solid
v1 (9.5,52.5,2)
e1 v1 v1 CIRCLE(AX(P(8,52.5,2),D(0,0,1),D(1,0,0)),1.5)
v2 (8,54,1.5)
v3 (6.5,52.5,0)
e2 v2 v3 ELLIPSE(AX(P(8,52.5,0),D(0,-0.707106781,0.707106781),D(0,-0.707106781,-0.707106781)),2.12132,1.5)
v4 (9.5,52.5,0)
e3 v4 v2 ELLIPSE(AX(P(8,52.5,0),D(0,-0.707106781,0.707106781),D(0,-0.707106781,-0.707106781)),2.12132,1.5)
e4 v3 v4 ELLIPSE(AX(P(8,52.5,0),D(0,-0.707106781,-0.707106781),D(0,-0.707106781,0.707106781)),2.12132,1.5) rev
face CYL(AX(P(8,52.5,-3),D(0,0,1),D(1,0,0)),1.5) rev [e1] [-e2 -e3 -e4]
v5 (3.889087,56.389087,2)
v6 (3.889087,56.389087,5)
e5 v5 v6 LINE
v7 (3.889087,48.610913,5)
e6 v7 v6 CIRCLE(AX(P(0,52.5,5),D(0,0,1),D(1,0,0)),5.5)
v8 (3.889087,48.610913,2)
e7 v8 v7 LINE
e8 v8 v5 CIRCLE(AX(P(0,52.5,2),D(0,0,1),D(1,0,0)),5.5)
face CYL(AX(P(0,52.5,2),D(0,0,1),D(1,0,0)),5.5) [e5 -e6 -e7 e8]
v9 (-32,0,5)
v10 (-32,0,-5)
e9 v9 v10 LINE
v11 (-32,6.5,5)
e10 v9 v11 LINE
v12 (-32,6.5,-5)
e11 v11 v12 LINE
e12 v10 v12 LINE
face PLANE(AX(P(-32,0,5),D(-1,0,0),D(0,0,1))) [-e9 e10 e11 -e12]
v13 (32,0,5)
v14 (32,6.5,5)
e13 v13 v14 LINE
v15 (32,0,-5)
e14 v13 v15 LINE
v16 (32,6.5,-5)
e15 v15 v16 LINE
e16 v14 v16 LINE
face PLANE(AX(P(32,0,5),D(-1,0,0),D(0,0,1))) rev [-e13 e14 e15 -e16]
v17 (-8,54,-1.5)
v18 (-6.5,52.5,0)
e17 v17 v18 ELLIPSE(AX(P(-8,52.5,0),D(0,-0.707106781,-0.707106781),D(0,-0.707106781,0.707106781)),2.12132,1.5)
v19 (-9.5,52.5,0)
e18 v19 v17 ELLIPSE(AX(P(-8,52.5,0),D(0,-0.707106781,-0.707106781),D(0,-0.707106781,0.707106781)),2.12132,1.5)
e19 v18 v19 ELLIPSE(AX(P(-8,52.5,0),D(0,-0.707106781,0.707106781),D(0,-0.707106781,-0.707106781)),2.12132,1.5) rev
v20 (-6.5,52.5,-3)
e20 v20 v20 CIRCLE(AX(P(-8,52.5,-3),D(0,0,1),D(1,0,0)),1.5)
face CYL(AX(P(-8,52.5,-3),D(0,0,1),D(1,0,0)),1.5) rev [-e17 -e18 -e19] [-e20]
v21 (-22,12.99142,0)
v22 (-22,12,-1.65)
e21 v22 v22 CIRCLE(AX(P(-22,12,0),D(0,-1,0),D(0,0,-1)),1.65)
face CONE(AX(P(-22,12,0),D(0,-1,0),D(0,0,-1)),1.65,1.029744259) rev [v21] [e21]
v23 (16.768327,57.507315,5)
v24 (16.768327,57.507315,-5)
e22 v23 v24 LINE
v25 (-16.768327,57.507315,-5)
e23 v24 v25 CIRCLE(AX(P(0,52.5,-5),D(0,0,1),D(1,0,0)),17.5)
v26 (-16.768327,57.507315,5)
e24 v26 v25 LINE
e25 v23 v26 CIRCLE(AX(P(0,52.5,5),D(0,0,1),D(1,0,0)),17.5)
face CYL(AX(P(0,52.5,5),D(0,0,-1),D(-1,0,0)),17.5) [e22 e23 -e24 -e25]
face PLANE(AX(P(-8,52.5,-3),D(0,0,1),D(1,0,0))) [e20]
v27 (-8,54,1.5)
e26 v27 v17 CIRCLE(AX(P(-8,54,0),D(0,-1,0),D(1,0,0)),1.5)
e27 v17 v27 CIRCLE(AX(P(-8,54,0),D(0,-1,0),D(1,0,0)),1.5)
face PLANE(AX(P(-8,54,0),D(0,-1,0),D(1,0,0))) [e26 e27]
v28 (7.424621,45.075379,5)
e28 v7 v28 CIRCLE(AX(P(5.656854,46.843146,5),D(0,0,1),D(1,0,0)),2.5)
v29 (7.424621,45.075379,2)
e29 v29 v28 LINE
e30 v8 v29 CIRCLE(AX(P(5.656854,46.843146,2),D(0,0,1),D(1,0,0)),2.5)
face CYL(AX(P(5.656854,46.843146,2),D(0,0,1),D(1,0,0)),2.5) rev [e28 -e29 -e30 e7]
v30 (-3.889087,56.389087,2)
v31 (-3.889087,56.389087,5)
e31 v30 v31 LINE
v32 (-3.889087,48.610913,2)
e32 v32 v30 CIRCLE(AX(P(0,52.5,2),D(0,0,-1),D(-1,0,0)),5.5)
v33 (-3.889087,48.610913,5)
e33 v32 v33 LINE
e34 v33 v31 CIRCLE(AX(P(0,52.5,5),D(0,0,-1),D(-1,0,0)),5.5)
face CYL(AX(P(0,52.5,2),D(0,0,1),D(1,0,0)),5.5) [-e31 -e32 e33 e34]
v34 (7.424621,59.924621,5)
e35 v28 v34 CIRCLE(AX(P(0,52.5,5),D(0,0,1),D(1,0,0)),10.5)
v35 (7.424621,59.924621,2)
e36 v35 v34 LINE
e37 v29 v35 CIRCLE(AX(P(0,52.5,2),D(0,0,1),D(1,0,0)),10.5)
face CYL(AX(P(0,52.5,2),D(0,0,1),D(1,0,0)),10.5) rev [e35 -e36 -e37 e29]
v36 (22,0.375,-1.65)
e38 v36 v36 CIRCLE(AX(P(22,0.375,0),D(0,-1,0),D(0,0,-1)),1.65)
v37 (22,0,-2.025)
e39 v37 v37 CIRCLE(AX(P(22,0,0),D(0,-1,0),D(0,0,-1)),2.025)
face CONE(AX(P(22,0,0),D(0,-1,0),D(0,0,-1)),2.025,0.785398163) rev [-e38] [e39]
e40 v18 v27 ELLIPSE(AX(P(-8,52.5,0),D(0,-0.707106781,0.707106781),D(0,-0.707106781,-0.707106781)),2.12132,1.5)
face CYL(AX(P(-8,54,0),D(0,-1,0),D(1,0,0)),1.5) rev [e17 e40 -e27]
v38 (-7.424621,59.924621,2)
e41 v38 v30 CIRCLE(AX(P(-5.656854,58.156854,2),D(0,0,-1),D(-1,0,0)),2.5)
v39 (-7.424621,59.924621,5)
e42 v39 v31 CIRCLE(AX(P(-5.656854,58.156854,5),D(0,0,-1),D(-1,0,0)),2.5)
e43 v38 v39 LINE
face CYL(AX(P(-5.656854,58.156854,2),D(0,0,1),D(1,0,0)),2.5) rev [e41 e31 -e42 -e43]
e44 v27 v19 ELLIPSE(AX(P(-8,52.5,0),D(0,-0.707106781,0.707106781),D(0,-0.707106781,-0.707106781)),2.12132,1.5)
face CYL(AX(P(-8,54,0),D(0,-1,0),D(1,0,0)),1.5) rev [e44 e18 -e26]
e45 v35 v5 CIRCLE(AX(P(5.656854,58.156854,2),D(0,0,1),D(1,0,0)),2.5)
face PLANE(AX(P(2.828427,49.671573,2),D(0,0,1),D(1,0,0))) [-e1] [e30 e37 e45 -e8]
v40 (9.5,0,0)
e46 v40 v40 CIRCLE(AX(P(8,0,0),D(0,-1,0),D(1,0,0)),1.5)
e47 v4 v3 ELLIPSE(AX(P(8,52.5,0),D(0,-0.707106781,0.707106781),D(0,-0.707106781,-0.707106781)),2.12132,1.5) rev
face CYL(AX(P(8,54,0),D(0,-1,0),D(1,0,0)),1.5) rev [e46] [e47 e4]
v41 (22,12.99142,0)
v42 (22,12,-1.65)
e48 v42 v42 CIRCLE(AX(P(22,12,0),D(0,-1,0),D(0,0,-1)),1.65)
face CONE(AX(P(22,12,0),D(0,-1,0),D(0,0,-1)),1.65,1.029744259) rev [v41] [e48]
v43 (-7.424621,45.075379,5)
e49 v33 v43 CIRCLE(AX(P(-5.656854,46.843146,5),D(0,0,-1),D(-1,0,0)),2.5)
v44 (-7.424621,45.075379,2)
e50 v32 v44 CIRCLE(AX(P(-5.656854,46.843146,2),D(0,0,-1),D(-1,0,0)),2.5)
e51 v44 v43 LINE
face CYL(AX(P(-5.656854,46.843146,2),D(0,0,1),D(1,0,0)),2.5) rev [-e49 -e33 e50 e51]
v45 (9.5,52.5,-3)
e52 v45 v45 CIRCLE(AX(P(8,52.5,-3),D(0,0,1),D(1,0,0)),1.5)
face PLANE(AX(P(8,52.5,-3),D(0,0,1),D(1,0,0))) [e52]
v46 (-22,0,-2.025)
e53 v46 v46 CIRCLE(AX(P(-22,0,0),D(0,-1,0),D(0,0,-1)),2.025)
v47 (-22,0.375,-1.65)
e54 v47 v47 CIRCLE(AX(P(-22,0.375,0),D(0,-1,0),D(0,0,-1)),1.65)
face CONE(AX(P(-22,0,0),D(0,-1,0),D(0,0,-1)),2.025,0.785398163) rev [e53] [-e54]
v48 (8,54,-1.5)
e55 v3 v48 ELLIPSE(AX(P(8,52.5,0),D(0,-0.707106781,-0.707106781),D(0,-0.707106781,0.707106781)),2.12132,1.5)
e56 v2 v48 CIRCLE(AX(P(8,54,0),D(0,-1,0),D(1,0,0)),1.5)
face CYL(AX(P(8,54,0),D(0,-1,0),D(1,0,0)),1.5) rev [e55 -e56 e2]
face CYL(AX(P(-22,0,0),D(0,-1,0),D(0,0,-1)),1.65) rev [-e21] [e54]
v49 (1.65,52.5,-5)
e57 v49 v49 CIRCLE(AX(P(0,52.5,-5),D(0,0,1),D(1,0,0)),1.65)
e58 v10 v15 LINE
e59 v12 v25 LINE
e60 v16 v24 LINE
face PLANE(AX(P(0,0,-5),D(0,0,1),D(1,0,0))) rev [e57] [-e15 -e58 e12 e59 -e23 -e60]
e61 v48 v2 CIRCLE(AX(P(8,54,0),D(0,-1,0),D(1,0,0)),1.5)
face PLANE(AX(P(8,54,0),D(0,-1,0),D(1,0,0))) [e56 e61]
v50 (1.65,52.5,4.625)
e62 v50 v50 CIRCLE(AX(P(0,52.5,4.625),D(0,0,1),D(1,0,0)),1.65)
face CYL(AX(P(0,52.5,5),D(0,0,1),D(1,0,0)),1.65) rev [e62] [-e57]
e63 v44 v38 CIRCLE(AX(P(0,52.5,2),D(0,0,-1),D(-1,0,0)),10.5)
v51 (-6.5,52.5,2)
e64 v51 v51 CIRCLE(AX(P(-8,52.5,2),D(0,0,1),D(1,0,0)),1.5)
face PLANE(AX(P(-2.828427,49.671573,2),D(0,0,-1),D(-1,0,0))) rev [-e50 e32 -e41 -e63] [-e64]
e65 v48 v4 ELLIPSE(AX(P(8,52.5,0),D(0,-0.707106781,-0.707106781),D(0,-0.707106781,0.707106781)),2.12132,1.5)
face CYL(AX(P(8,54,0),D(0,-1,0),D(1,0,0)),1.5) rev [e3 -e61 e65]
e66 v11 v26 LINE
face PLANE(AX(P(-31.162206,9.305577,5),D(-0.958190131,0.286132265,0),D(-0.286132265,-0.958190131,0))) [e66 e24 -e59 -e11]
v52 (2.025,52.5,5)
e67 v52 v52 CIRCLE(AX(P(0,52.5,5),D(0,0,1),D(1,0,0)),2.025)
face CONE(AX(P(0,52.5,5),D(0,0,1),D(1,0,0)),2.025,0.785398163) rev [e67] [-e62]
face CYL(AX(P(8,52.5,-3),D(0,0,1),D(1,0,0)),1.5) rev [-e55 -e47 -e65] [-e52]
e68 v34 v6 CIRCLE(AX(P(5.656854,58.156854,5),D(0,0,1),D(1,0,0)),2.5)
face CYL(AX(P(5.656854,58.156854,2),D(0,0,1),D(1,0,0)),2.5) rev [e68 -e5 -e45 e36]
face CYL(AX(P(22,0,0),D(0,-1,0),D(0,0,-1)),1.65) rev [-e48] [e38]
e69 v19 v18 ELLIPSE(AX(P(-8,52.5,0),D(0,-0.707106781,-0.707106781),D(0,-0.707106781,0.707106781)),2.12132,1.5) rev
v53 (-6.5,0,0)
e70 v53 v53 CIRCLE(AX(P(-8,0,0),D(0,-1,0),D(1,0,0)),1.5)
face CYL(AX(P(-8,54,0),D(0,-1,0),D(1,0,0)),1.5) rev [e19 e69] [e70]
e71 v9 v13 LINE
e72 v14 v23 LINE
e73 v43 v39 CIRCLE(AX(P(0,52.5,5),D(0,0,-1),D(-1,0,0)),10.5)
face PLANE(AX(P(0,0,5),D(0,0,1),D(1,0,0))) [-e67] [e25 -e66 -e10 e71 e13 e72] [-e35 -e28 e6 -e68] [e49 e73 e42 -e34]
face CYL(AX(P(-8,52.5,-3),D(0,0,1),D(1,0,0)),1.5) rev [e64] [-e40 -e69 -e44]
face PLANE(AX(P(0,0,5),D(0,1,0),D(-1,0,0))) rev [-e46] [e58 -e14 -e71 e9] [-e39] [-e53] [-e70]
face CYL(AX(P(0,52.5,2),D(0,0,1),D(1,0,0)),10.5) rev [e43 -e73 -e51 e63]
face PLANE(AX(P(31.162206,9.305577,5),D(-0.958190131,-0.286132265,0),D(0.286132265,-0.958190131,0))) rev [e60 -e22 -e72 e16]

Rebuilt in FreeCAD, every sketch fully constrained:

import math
import FreeCAD as App
import Part
import Sketcher

V = App.Vector
Q = App.Units.Quantity

doc = App.newDocument("Part")
params = doc.addObject("Spreadsheet::Sheet", "Params")
for row, (alias, value) in enumerate([
    ("sketch1_radius", "17.5 mm"),
    ("sketch1_width", "64 mm"),
    ("sketch1_height", "6.5 mm"),
    ("pad1_length", "10 mm"),
    ("sketch2_diameter", "3.3 mm"),
    ("hole_diameter", "3.3 mm"),
    ("hole_csink_diameter", "4.05 mm"),
    ("sketch3_diameter", "3.3 mm"),
    ("hole2_diameter", "3.3 mm"),
    ("hole2_depth", "12 mm"),
    ("hole2_csink_diameter", "4.05 mm"),
    ("sketch4_diameter", "3 mm"),
    ("pocket1_length", "54 mm"),
    ("sketch5_radius", "10.5 mm"),
    ("sketch5_radius2", "2.5 mm"),
    ("pocket2_length", "3 mm"),
    ("sketch6_diameter", "3 mm"),
    ("pocket3_length", "5 mm"),
], start=1):
    params.set(f"A{row}", alias)
    params.set(f"B{row}", "=" + value)
    params.setAlias(f"B{row}", alias)

body = doc.addObject("PartDesign::Body", "Body")

# Sketch on XY plane
sketch1 = body.newObject("Sketcher::SketchObject", "Sketch")
sketch1.AttachmentSupport = (doc.getObject("XY_Plane"), [""])
sketch1.MapMode = "FlatFace"
sketch1.addGeometry(Part.LineSegment(V(-32, 0, 0), V(32, 0, 0)), False)
sketch1.addGeometry(Part.LineSegment(V(32, 0, 0), V(32, 6, 0)), False)
sketch1.addGeometry(Part.LineSegment(V(32, 6, 0), V(17, 58, 0)), False)
sketch1.addGeometry(Part.ArcOfCircle(Part.Circle(V(0, 52, 0), V(0, 0, 1), 18), math.radians(17), math.radians(163)), False)
sketch1.addGeometry(Part.LineSegment(V(-17, 58, 0), V(-32, 6, 0)), False)
sketch1.addGeometry(Part.LineSegment(V(-32, 6, 0), V(-32, 0, 0)), False)
sketch1.addConstraint(Sketcher.Constraint("Coincident", 0, 2, 1, 1))
sketch1.addConstraint(Sketcher.Constraint("Coincident", 1, 2, 2, 1))
sketch1.addConstraint(Sketcher.Constraint("Tangent", 2, 2, 3, 1))
sketch1.addConstraint(Sketcher.Constraint("Tangent", 3, 2, 4, 1))
sketch1.addConstraint(Sketcher.Constraint("Coincident", 4, 2, 5, 1))
sketch1.addConstraint(Sketcher.Constraint("Coincident", 5, 2, 0, 1))
sketch1.addConstraint(Sketcher.Constraint("Horizontal", 0))
sketch1.addConstraint(Sketcher.Constraint("Vertical", 1))
sketch1.addConstraint(Sketcher.Constraint("Vertical", 5))
sketch1.addConstraint(Sketcher.Constraint("Symmetric", 0, 2, 5, 2, -1, 1))
sketch1.addConstraint(Sketcher.Constraint("Symmetric", 2, 2, 3, 2, -2))
sketch1.addConstraint(Sketcher.Constraint("Radius", 3, Q("17.5 mm")))
sketch1.addConstraint(Sketcher.Constraint("DistanceX", 0, 1, 0, 2, Q("64 mm")))
sketch1.addConstraint(Sketcher.Constraint("DistanceY", 1, 1, 1, 2, Q("6.5 mm")))
sketch1.addConstraint(Sketcher.Constraint("DistanceY", 1, 2, 3, 3, Q("46 mm")))
sketch1.setExpression("Constraints[11]", "Params.sketch1_radius")
sketch1.setExpression("Constraints[12]", "Params.sketch1_width")
sketch1.setExpression("Constraints[13]", "Params.sketch1_height")
pad1 = body.newObject("PartDesign::Pad", "Pad")
pad1.Profile = sketch1
pad1.setExpression("Length", "Params.pad1_length")
pad1.Midplane = True

# Sketch on XY plane
sketch2 = body.newObject("Sketcher::SketchObject", "Sketch001")
sketch2.AttachmentSupport = (doc.getObject("XY_Plane"), [""])
sketch2.MapMode = "FlatFace"
sketch2.AttachmentOffset = App.Placement(V(0, 0, 5), App.Rotation())
sketch2.addGeometry(Part.Circle(V(0, 52.5, 0), V(0, 0, 1), 1.6), False)
sketch2.addConstraint(Sketcher.Constraint("PointOnObject", 0, 3, -2))
sketch2.addConstraint(Sketcher.Constraint("Diameter", 0, Q("3.3 mm")))
sketch2.addConstraint(Sketcher.Constraint("DistanceY", -1, 1, 0, 3, Q("52.5 mm")))
sketch2.setExpression("Constraints[1]", "Params.sketch2_diameter")
doc.recompute()
hole = body.newObject("PartDesign::Hole", "Hole")
hole.Profile = sketch2
hole.ThreadType = "None"
hole.setExpression("Diameter", "Params.hole_diameter")
hole.DepthType = "ThroughAll"
hole.HoleCutType = "Countersink"
hole.setExpression("HoleCutDiameter", "Params.hole_csink_diameter")
hole.HoleCutCountersinkAngle = 90

# Sketch on XZ plane
sketch3 = body.newObject("Sketcher::SketchObject", "Sketch002")
sketch3.AttachmentSupport = (doc.getObject("XZ_Plane"), [""])
sketch3.MapMode = "FlatFace"
sketch3.addGeometry(Part.Circle(V(-22, 0, 0), V(0, 0, 1), 1.6), False)
sketch3.addGeometry(Part.Circle(V(22, 0, 0), V(0, 0, 1), 1.6), False)
sketch3.addConstraint(Sketcher.Constraint("Equal", 0, 1))
sketch3.addConstraint(Sketcher.Constraint("Symmetric", 0, 3, 1, 3, -1, 1))
sketch3.addConstraint(Sketcher.Constraint("PointOnObject", 0, 3, -1))
sketch3.addConstraint(Sketcher.Constraint("Diameter", 0, Q("3.3 mm")))
sketch3.addConstraint(Sketcher.Constraint("DistanceX", 0, 3, -1, 1, Q("22 mm")))
sketch3.setExpression("Constraints[3]", "Params.sketch3_diameter")
doc.recompute()
hole2 = body.newObject("PartDesign::Hole", "Hole001")
hole2.Profile = sketch3
hole2.ThreadType = "None"
hole2.setExpression("Diameter", "Params.hole2_diameter")
hole2.DepthType = "Dimension"
hole2.setExpression("Depth", "Params.hole2_depth")
hole2.DrillPoint = "Angled"
hole2.DrillPointAngle = 118
hole2.HoleCutType = "Countersink"
hole2.setExpression("HoleCutDiameter", "Params.hole2_csink_diameter")
hole2.HoleCutCountersinkAngle = 90

# Sketch on XZ plane
sketch4 = body.newObject("Sketcher::SketchObject", "Sketch003")
sketch4.AttachmentSupport = (doc.getObject("XZ_Plane"), [""])
sketch4.MapMode = "FlatFace"
sketch4.addGeometry(Part.Circle(V(-8, 0, 0), V(0, 0, 1), 1.5), False)
sketch4.addGeometry(Part.Circle(V(8, 0, 0), V(0, 0, 1), 1.5), False)
sketch4.addConstraint(Sketcher.Constraint("Equal", 0, 1))
sketch4.addConstraint(Sketcher.Constraint("Symmetric", 0, 3, 1, 3, -1, 1))
sketch4.addConstraint(Sketcher.Constraint("PointOnObject", 0, 3, -1))
sketch4.addConstraint(Sketcher.Constraint("Diameter", 0, Q("3 mm")))
sketch4.addConstraint(Sketcher.Constraint("DistanceX", 0, 3, -1, 1, Q("8 mm")))
sketch4.setExpression("Constraints[3]", "Params.sketch4_diameter")
pocket1 = body.newObject("PartDesign::Pocket", "Pocket")
pocket1.Profile = sketch4
pocket1.setExpression("Length", "Params.pocket1_length")

# Sketch on XY plane
sketch5 = body.newObject("Sketcher::SketchObject", "Sketch004")
sketch5.AttachmentSupport = (doc.getObject("XY_Plane"), [""])
sketch5.MapMode = "FlatFace"
sketch5.AttachmentOffset = App.Placement(V(0, 0, 5), App.Rotation())
sketch5.addGeometry(Part.ArcOfCircle(Part.Circle(V(0, 52.5, 0), V(0, 0, 1), 10.5), math.radians(135), math.radians(225)), False)
sketch5.addGeometry(Part.ArcOfCircle(Part.Circle(V(-5.7, 58.2, 0), V(0, 0, 1), 2.5), math.radians(-45), math.radians(135)), False)
sketch5.addGeometry(Part.ArcOfCircle(Part.Circle(V(0, 52.5, 0), V(0, 0, 1), 5.5), math.radians(135), math.radians(225)), False)
sketch5.addGeometry(Part.ArcOfCircle(Part.Circle(V(-5.7, 46.8, 0), V(0, 0, 1), 2.5), math.radians(-135), math.radians(45)), False)
sketch5.addGeometry(Part.ArcOfCircle(Part.Circle(V(0, 52.5, 0), V(0, 0, 1), 10.5), math.radians(-45), math.radians(45)), False)
sketch5.addGeometry(Part.ArcOfCircle(Part.Circle(V(5.7, 46.8, 0), V(0, 0, 1), 2.5), math.radians(135), math.radians(315)), False)
sketch5.addGeometry(Part.ArcOfCircle(Part.Circle(V(0, 52.5, 0), V(0, 0, 1), 5.5), math.radians(-45), math.radians(45)), False)
sketch5.addGeometry(Part.ArcOfCircle(Part.Circle(V(5.7, 58.2, 0), V(0, 0, 1), 2.5), math.radians(45), math.radians(225)), False)
sketch5.addConstraint(Sketcher.Constraint("Tangent", 0, 1, 1, 2))
sketch5.addConstraint(Sketcher.Constraint("Tangent", 1, 1, 2, 1))
sketch5.addConstraint(Sketcher.Constraint("Tangent", 2, 2, 3, 2))
sketch5.addConstraint(Sketcher.Constraint("Tangent", 3, 1, 0, 2))
sketch5.addConstraint(Sketcher.Constraint("Tangent", 4, 1, 5, 2))
sketch5.addConstraint(Sketcher.Constraint("Tangent", 5, 1, 6, 1))
sketch5.addConstraint(Sketcher.Constraint("Tangent", 6, 2, 7, 2))
sketch5.addConstraint(Sketcher.Constraint("Tangent", 7, 1, 4, 2))
sketch5.addConstraint(Sketcher.Constraint("Coincident", 2, 3, 0, 3))
sketch5.addConstraint(Sketcher.Constraint("Coincident", 4, 3, 0, 3))
sketch5.addConstraint(Sketcher.Constraint("Coincident", 6, 3, 0, 3))
sketch5.addConstraint(Sketcher.Constraint("Equal", 0, 4))
sketch5.addConstraint(Sketcher.Constraint("Equal", 3, 5))
sketch5.addConstraint(Sketcher.Constraint("Symmetric", 3, 3, 5, 3, -2))
sketch5.addConstraint(Sketcher.Constraint("Horizontal", 1, 3, 7, 3))
sketch5.addConstraint(Sketcher.Constraint("Vertical", 1, 3, 3, 3))
sketch5.addConstraint(Sketcher.Constraint("Radius", 0, Q("10.5 mm")))
sketch5.addConstraint(Sketcher.Constraint("Radius", 1, Q("2.5 mm")))
sketch5.addConstraint(Sketcher.Constraint("DistanceY", -1, 1, 0, 3, Q("52.5 mm")))
sketch5.addConstraint(Sketcher.Constraint("DistanceX", 0, 1, -1, 1, Q("7.424621 mm")))
sketch5.setExpression("Constraints[16]", "Params.sketch5_radius")
sketch5.setExpression("Constraints[17]", "Params.sketch5_radius2")
pocket2 = body.newObject("PartDesign::Pocket", "Pocket001")
pocket2.Profile = sketch5
pocket2.setExpression("Length", "Params.pocket2_length")

# Sketch on XY plane
sketch6 = body.newObject("Sketcher::SketchObject", "Sketch005")
sketch6.AttachmentSupport = (doc.getObject("XY_Plane"), [""])
sketch6.MapMode = "FlatFace"
sketch6.AttachmentOffset = App.Placement(V(0, 0, 2), App.Rotation())
sketch6.addGeometry(Part.Circle(V(-8, 52.5, 0), V(0, 0, 1), 1.5), False)
sketch6.addGeometry(Part.Circle(V(8, 52.5, 0), V(0, 0, 1), 1.5), False)
sketch6.addConstraint(Sketcher.Constraint("Equal", 0, 1))
sketch6.addConstraint(Sketcher.Constraint("Symmetric", 0, 3, 1, 3, -2))
sketch6.addConstraint(Sketcher.Constraint("Diameter", 0, Q("3 mm")))
sketch6.addConstraint(Sketcher.Constraint("DistanceX", 0, 3, -1, 1, Q("8 mm")))
sketch6.addConstraint(Sketcher.Constraint("DistanceY", -1, 1, 0, 3, Q("52.5 mm")))
sketch6.setExpression("Constraints[2]", "Params.sketch6_diameter")
pocket3 = body.newObject("PartDesign::Pocket", "Pocket002")
pocket3.Profile = sketch6
pocket3.setExpression("Length", "Params.pocket3_length")

doc.recompute()
